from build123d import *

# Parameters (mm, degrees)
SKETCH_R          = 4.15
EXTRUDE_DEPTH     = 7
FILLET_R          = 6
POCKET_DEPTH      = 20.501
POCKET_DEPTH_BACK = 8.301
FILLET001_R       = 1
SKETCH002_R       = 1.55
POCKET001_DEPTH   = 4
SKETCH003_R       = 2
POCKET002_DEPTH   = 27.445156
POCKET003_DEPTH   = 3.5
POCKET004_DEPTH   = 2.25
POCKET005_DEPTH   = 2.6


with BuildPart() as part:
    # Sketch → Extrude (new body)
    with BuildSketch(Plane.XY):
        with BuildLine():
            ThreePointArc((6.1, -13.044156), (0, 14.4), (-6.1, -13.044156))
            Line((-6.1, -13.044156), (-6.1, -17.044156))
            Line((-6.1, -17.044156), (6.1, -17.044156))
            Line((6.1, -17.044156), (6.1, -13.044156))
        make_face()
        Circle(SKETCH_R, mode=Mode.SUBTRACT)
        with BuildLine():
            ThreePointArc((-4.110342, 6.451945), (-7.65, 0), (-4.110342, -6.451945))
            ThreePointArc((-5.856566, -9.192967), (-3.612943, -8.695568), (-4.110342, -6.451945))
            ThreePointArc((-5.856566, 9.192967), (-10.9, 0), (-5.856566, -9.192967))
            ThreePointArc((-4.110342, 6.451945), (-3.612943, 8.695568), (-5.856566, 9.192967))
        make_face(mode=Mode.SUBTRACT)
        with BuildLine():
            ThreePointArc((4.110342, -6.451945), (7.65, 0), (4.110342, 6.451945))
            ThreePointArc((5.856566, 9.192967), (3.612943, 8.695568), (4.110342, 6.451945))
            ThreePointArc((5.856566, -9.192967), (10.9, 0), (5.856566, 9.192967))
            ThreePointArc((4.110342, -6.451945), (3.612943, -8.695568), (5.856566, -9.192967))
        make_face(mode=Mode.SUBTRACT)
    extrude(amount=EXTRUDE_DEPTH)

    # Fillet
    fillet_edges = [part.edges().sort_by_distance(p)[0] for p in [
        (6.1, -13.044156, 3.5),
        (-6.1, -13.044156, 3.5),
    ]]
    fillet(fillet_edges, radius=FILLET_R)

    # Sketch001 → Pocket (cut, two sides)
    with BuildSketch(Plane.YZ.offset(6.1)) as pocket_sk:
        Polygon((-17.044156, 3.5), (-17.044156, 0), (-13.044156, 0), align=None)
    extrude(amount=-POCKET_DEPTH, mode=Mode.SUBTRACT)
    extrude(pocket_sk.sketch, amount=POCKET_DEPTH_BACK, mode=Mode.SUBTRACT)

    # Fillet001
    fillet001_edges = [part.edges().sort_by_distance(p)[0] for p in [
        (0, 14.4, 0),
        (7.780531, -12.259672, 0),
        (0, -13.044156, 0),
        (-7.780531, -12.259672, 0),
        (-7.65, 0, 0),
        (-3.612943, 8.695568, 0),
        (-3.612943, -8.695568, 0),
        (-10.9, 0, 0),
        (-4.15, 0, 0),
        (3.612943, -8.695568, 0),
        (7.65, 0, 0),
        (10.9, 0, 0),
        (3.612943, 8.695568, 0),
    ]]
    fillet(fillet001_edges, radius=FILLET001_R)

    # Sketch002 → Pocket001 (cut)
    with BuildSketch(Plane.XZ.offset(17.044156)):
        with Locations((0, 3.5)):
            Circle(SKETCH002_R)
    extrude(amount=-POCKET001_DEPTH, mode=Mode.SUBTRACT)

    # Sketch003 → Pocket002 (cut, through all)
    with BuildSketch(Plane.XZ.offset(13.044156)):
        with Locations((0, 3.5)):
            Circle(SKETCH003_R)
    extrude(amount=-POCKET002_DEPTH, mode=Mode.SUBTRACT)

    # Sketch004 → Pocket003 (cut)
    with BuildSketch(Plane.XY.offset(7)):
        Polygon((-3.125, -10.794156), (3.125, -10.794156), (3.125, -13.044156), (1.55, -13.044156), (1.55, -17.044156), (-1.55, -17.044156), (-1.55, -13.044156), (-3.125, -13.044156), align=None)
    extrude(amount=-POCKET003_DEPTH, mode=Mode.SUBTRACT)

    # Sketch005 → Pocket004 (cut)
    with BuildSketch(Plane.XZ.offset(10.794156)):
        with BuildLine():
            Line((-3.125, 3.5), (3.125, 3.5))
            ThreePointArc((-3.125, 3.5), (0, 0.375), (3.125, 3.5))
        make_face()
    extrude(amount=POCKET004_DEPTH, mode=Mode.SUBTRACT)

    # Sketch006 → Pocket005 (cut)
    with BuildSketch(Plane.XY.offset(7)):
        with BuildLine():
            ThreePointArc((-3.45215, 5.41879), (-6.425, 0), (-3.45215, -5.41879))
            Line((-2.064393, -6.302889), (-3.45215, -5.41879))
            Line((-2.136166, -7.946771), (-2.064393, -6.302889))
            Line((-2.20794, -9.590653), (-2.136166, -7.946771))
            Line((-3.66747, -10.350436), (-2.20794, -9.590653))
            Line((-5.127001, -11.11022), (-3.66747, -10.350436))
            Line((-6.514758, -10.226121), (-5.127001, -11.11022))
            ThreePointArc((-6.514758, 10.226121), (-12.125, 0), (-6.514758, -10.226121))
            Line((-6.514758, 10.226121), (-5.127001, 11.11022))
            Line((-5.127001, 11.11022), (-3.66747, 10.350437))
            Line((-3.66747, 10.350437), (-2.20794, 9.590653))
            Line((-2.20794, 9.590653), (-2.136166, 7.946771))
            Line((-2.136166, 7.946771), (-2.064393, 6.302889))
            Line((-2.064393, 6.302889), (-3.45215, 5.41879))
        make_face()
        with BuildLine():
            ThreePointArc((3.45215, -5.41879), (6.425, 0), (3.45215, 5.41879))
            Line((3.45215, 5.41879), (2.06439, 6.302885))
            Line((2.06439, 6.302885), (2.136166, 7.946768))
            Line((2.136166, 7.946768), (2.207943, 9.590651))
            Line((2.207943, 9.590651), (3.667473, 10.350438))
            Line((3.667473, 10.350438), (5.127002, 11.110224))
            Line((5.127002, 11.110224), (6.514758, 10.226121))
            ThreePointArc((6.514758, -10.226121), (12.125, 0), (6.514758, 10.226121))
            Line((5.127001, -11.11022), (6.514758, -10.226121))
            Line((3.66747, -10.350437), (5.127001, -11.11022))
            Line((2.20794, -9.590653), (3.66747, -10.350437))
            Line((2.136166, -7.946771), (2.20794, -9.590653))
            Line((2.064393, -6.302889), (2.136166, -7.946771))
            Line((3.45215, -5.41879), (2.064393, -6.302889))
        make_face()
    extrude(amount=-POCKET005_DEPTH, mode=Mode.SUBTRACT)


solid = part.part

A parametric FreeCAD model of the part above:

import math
import FreeCAD as App
import Part
import Sketcher

V = App.Vector
Q = App.Units.Quantity


def edges_at(feature, points):
    """Names of the edges that pass closest to the given points."""
    edges = feature.Shape.Edges
    near = lambda p: min(range(len(edges)), key=lambda i: edges[i].distToShape(Part.Vertex(*p))[0])
    return sorted({f"Edge{near(p) + 1}" for p in points})


def add_polygon(sketch, points):
    """Adds a closed chain of lines whose ends are joined by coincident constraints."""
    first, n = sketch.GeometryCount, len(points)
    for a, b in zip(points, points[1:] + points[:1]):
        sketch.addGeometry(Part.LineSegment(App.Vector(*a, 0), App.Vector(*b, 0)), False)
    for i in range(n):
        sketch.addConstraint(Sketcher.Constraint("Coincident", first + i, 2, first + (i + 1) % n, 1))

doc = App.newDocument("Part")
params = doc.addObject("Spreadsheet::Sheet", "Params")
for row, (alias, value) in enumerate([
    ("sketch1_diameter", "8.3 mm"),
    ("sketch1_radius", "14.4 mm"),
    ("sketch1_radius2", "10.900001 mm"),
    ("sketch1_height", "4 mm"),
    ("sketch1_radius3", "7.650001 mm"),
    ("pad1_length", "7 mm"),
    ("fillet_radius", "6 mm"),
    ("sketch2_width", "4 mm"),
    ("sketch2_height", "3.5 mm"),
    ("fillet2_radius", "1 mm"),
    ("sketch3_diameter", "3.1 mm"),
    ("pocket2_length", "4 mm"),
    ("sketch4_diameter", "4 mm"),
    ("sketch5_height", "4 mm"),
    ("sketch5_width", "3.1 mm"),
    ("sketch5_width2", "6.25 mm"),
    ("sketch5_height2", "2.25 mm"),
    ("pocket4_length", "3.5 mm"),
    ("pocket5_length", "2.25 mm"),
    ("pocket6_length", "2.6 mm"),
], start=1):
    params.set(f"A{row}", alias)
    params.set(f"B{row}", "=" + value)
    params.setAlias(f"B{row}", alias)

body = doc.addObject("PartDesign::Body", "Body")

sketch1 = body.newObject("Sketcher::SketchObject", "Sketch")
sketch1.AttachmentSupport = (doc.getObject("XY_Plane"), [""])
sketch1.MapMode = "FlatFace"
sketch1.addGeometry(Part.ArcOfCircle(Part.Circle(V(0, 0, 0), V(0, 0, 1), 14.4), math.radians(-65), math.radians(245)), False)
sketch1.addGeometry(Part.LineSegment(V(-6.1, -13, 0), V(-6.1, -17, 0)), False)
sketch1.addGeometry(Part.LineSegment(V(-6.1, -17, 0), V(6.1, -17, 0)), False)
sketch1.addGeometry(Part.LineSegment(V(6.1, -17, 0), V(6.1, -13, 0)), False)
sketch1.addGeometry(Part.ArcOfCircle(Part.Circle(V(-5, 7.8, 0), V(0, 0, 1), 1.6), math.radians(-57), math.radians(123)), False)
sketch1.addGeometry(Part.ArcOfCircle(Part.Circle(V(0, 0, 0), V(0, 0, 1), 7.7), math.radians(123), math.radians(237)), False)
sketch1.addGeometry(Part.ArcOfCircle(Part.Circle(V(-5, -7.8, 0), V(0, 0, 1), 1.6), math.radians(-123), math.radians(57)), False)
sketch1.addGeometry(Part.ArcOfCircle(Part.Circle(V(0, 0, 0), V(0, 0, 1), 10.9), math.radians(123), math.radians(237)), False)
sketch1.addGeometry(Part.Circle(V(0, 0, 0), V(0, 0, 1), 4.2), False)
sketch1.addGeometry(Part.ArcOfCircle(Part.Circle(V(5, -7.8, 0), V(0, 0, 1), 1.6), math.radians(123), math.radians(303)), False)
sketch1.addGeometry(Part.ArcOfCircle(Part.Circle(V(0, 0, 0), V(0, 0, 1), 7.7), math.radians(-57), math.radians(57)), False)
sketch1.addGeometry(Part.ArcOfCircle(Part.Circle(V(5, 7.8, 0), V(0, 0, 1), 1.6), math.radians(57), math.radians(237)), False)
sketch1.addGeometry(Part.ArcOfCircle(Part.Circle(V(0, 0, 0), V(0, 0, 1), 10.9), math.radians(-57), math.radians(57)), False)
sketch1.addConstraint(Sketcher.Constraint("Coincident", 0, 2, 1, 1))
sketch1.addConstraint(Sketcher.Constraint("Coincident", 1, 2, 2, 1))
sketch1.addConstraint(Sketcher.Constraint("Coincident", 2, 2, 3, 1))
sketch1.addConstraint(Sketcher.Constraint("Coincident", 3, 2, 0, 1))
sketch1.addConstraint(Sketcher.Constraint("Tangent", 4, 1, 5, 1))
sketch1.addConstraint(Sketcher.Constraint("Tangent", 5, 2, 6, 2))
sketch1.addConstraint(Sketcher.Constraint("Tangent", 6, 1, 7, 2))
sketch1.addConstraint(Sketcher.Constraint("Tangent", 7, 1, 4, 2))
sketch1.addConstraint(Sketcher.Constraint("Tangent", 9, 1, 10, 1))
sketch1.addConstraint(Sketcher.Constraint("Tangent", 10, 2, 11, 2))
sketch1.addConstraint(Sketcher.Constraint("Tangent", 11, 1, 12, 2))
sketch1.addConstraint(Sketcher.Constraint("Tangent", 12, 1, 9, 2))
sketch1.addConstraint(Sketcher.Constraint("Vertical", 1))
sketch1.addConstraint(Sketcher.Constraint("Horizontal", 2))
sketch1.addConstraint(Sketcher.Constraint("Vertical", 3))
sketch1.addConstraint(Sketcher.Constraint("Coincident", 0, 3, -1, 1))
sketch1.addConstraint(Sketcher.Constraint("Coincident", 5, 3, -1, 1))
sketch1.addConstraint(Sketcher.Constraint("Coincident", 7, 3, -1, 1))
sketch1.addConstraint(Sketcher.Constraint("Coincident", 8, 3, -1, 1))
sketch1.addConstraint(Sketcher.Constraint("Coincident", 10, 3, -1, 1))
sketch1.addConstraint(Sketcher.Constraint("Coincident", 12, 3, -1, 1))
sketch1.addConstraint(Sketcher.Constraint("Equal", 6, 9))
sketch1.addConstraint(Sketcher.Constraint("Equal", 5, 10))
sketch1.addConstraint(Sketcher.Constraint("Horizontal", 6, 3, 9, 3))
sketch1.addConstraint(Sketcher.Constraint("Horizontal", 4, 3, 11, 3))
sketch1.addConstraint(Sketcher.Constraint("Horizontal", 0, 2, 3, 2))
sketch1.addConstraint(Sketcher.Constraint("Vertical", 4, 3, 6, 3))
sketch1.addConstraint(Sketcher.Constraint("Diameter", 8, Q("8.3 mm")))
sketch1.addConstraint(Sketcher.Constraint("Radius", 0, Q("14.4 mm")))
sketch1.addConstraint(Sketcher.Constraint("Radius", 7, Q("10.900001 mm")))
sketch1.addConstraint(Sketcher.Constraint("DistanceY", 1, 2, 1, 1, Q("4 mm")))
sketch1.addConstraint(Sketcher.Constraint("Radius", 5, Q("7.650001 mm")))
sketch1.addConstraint(Sketcher.Constraint("DistanceX", 2, 1, 2, 2, Q("12.2 mm")))
sketch1.addConstraint(Sketcher.Constraint("DistanceY", 0, 2, 6, 3, Q("5.2217 mm")))
sketch1.setExpression("Constraints[27]", "Params.sketch1_diameter")
sketch1.setExpression("Constraints[28]", "Params.sketch1_radius")
sketch1.setExpression("Constraints[29]", "Params.sketch1_radius2")
sketch1.setExpression("Constraints[30]", "Params.sketch1_height")
sketch1.setExpression("Constraints[31]", "Params.sketch1_radius3")
pad1 = body.newObject("PartDesign::Pad", "Pad")
pad1.Profile = sketch1
pad1.setExpression("Length", "Params.pad1_length")
doc.recompute()

fillet = body.newObject("PartDesign::Fillet", "Fillet")
fillet.Base = (pad1, edges_at(pad1, [(6.1, -13.044, 3.5), (-6.1, -13.044, 3.5)]))
fillet.setExpression("Radius", "Params.fillet_radius")

sketch2 = body.newObject("Sketcher::SketchObject", "Sketch001")
sketch2.AttachmentSupport = (doc.getObject("YZ_Plane"), [""])
sketch2.MapMode = "FlatFace"
sketch2.AttachmentOffset = App.Placement(V(0, 0, 6.1), App.Rotation())
add_polygon(sketch2, [(-17, 3.5), (-17, 0), (-13, 0)])
sketch2.addConstraint(Sketcher.Constraint("Vertical", 0))
sketch2.addConstraint(Sketcher.Constraint("Horizontal", 1))
sketch2.addConstraint(Sketcher.Constraint("PointOnObject", 0, 2, -1))
sketch2.addConstraint(Sketcher.Constraint("DistanceX", 1, 1, 1, 2, Q("4 mm")))
sketch2.addConstraint(Sketcher.Constraint("DistanceY", 0, 2, 0, 1, Q("3.5 mm")))
sketch2.addConstraint(Sketcher.Constraint("DistanceX", 0, 2, -1, 1, Q("17.044156 mm")))
sketch2.setExpression("Constraints[6]", "Params.sketch2_width")
sketch2.setExpression("Constraints[7]", "Params.sketch2_height")
pocket1 = body.newObject("PartDesign::Pocket", "Pocket")
pocket1.Profile = sketch2
pocket1.Type = "ThroughAll"
pocket1.Midplane = True
doc.recompute()

fillet2 = body.newObject("PartDesign::Fillet", "Fillet001")
fillet2.Base = (pocket1, edges_at(pocket1, [
    (0, 14.4, 0),
    (7.781, -12.26, 0),
    (0, -13.044, 0),
    (-7.781, -12.26, 0),
    (-7.65, 0, 0),
    (-3.613, 8.696, 0),
    (-3.613, -8.696, 0),
    (-10.9, 0, 0),
    (-4.15, 0, 0),
    (3.613, -8.696, 0),
    (7.65, 0, 0),
    (10.9, 0, 0),
    (3.613, 8.696, 0),
]))
fillet2.setExpression("Radius", "Params.fillet2_radius")

sketch3 = body.newObject("Sketcher::SketchObject", "Sketch002")
sketch3.AttachmentSupport = (doc.getObject("XZ_Plane"), [""])
sketch3.MapMode = "FlatFace"
sketch3.AttachmentOffset = App.Placement(V(0, 0, 17.044156), App.Rotation())
sketch3.addGeometry(Part.Circle(V(0, 3.5, 0), V(0, 0, 1), 1.6), False)
sketch3.addConstraint(Sketcher.Constraint("PointOnObject", 0, 3, -2))
sketch3.addConstraint(Sketcher.Constraint("Diameter", 0, Q("3.1 mm")))
sketch3.addConstraint(Sketcher.Constraint("DistanceY", -1, 1, 0, 3, Q("3.5 mm")))
sketch3.setExpression("Constraints[1]", "Params.sketch3_diameter")
pocket2 = body.newObject("PartDesign::Pocket", "Pocket001")
pocket2.Profile = sketch3
pocket2.setExpression("Length", "Params.pocket2_length")

sketch4 = body.newObject("Sketcher::SketchObject", "Sketch003")
sketch4.AttachmentSupport = (doc.getObject("XZ_Plane"), [""])
sketch4.MapMode = "FlatFace"
sketch4.AttachmentOffset = App.Placement(V(0, 0, 13.044156), App.Rotation())
sketch4.addGeometry(Part.Circle(V(0, 3.5, 0), V(0, 0, 1), 2), False)
sketch4.addConstraint(Sketcher.Constraint("PointOnObject", 0, 3, -2))
sketch4.addConstraint(Sketcher.Constraint("Diameter", 0, Q("4 mm")))
sketch4.addConstraint(Sketcher.Constraint("DistanceY", -1, 1, 0, 3, Q("3.5 mm")))
sketch4.setExpression("Constraints[1]", "Params.sketch4_diameter")
pocket3 = body.newObject("PartDesign::Pocket", "Pocket002")
pocket3.Profile = sketch4
pocket3.Type = "ThroughAll"

sketch5 = body.newObject("Sketcher::SketchObject", "Sketch004")
sketch5.AttachmentSupport = (doc.getObject("XY_Plane"), [""])
sketch5.MapMode = "FlatFace"
sketch5.AttachmentOffset = App.Placement(V(0, 0, 7), App.Rotation())
add_polygon(sketch5, [(3.1, -10.8), (-3.1, -10.8), (-3.1, -13), (-1.6, -13), (-1.6, -17), (1.6, -17), (1.6, -13), (3.1, -13)])
sketch5.addConstraint(Sketcher.Constraint("Horizontal", 0))
sketch5.addConstraint(Sketcher.Constraint("Vertical", 1))
sketch5.addConstraint(Sketcher.Constraint("Horizontal", 2))
sketch5.addConstraint(Sketcher.Constraint("Vertical", 3))
sketch5.addConstraint(Sketcher.Constraint("Horizontal", 4))
sketch5.addConstraint(Sketcher.Constraint("Vertical", 5))
sketch5.addConstraint(Sketcher.Constraint("Horizontal", 6))
sketch5.addConstraint(Sketcher.Constraint("Vertical", 7))
sketch5.addConstraint(Sketcher.Constraint("Symmetric", 2, 2, 5, 2, -2))
sketch5.addConstraint(Sketcher.Constraint("Equal", 2, 6))
sketch5.addConstraint(Sketcher.Constraint("DistanceY", 3, 2, 3, 1, Q("4 mm")))
sketch5.addConstraint(Sketcher.Constraint("DistanceX", 4, 1, 4, 2, Q("3.1 mm")))
sketch5.addConstraint(Sketcher.Constraint("DistanceX", 0, 2, 0, 1, Q("6.25 mm")))
sketch5.addConstraint(Sketcher.Constraint("DistanceY", 1, 2, 1, 1, Q("2.25 mm")))
sketch5.addConstraint(Sketcher.Constraint("DistanceY", 0, 2, -1, 1, Q("10.794156 mm")))
sketch5.setExpression("Constraints[18]", "Params.sketch5_height")
sketch5.setExpression("Constraints[19]", "Params.sketch5_width")
sketch5.setExpression("Constraints[20]", "Params.sketch5_width2")
sketch5.setExpression("Constraints[21]", "Params.sketch5_height2")
pocket4 = body.newObject("PartDesign::Pocket", "Pocket003")
pocket4.Profile = sketch5
pocket4.setExpression("Length", "Params.pocket4_length")

sketch6 = body.newObject("Sketcher::SketchObject", "Sketch005")
sketch6.AttachmentSupport = (doc.getObject("XZ_Plane"), [""])
sketch6.MapMode = "FlatFace"
sketch6.AttachmentOffset = App.Placement(V(0, 0, 10.794156), App.Rotation())
sketch6.addGeometry(Part.LineSegment(V(3.1, 3.5, 0), V(-3.1, 3.5, 0)), False)
sketch6.addGeometry(Part.ArcOfCircle(Part.Circle(V(0, 3.5, 0), V(0, 0, 1), 3.1), math.radians(180), math.radians(360)), False)
sketch6.addConstraint(Sketcher.Constraint("Coincident", 0, 1, 1, 2))
sketch6.addConstraint(Sketcher.Constraint("Coincident", 1, 1, 0, 2))
sketch6.addConstraint(Sketcher.Constraint("Horizontal", 0))
sketch6.addConstraint(Sketcher.Constraint("PointOnObject", 1, 3, -2))
sketch6.addConstraint(Sketcher.Constraint("Horizontal", 1, 3, 0, 1))
sketch6.addConstraint(Sketcher.Constraint("Radius", 1, Q("3.125 mm")))
sketch6.addConstraint(Sketcher.Constraint("DistanceY", -1, 1, 1, 3, Q("3.5 mm")))
pocket5 = body.newObject("PartDesign::Pocket", "Pocket004")
pocket5.Profile = sketch6
pocket5.setExpression("Length", "Params.pocket5_length")
pocket5.Reversed = True

sketch7 = body.newObject("Sketcher::SketchObject", "Sketch006")
sketch7.AttachmentSupport = (doc.getObject("XY_Plane"), [""])
sketch7.MapMode = "FlatFace"
sketch7.AttachmentOffset = App.Placement(V(0, 0, 7), App.Rotation())
sketch7.addGeometry(Part.ArcOfCircle(Part.Circle(V(0, 0, 0), V(0, 0, 1), 6.4), math.radians(122), math.radians(238)), False)
sketch7.addGeometry(Part.LineSegment(V(-3.5, 5.4, 0), V(-2.1, 6.3, 0)), False)
sketch7.addGeometry(Part.LineSegment(V(-2.1, 6.3, 0), V(-2.1, 7.9, 0)), False)
sketch7.addGeometry(Part.LineSegment(V(-2.1, 7.9, 0), V(-2.2, 9.6, 0)), False)
sketch7.addGeometry(Part.LineSegment(V(-2.2, 9.6, 0), V(-3.7, 10.4, 0)), False)
sketch7.addGeometry(Part.LineSegment(V(-3.7, 10.4, 0), V(-5.1, 11.1, 0)), False)
sketch7.addGeometry(Part.LineSegment(V(-5.1, 11.1, 0), V(-6.5, 10.2, 0)), False)
sketch7.addGeometry(Part.ArcOfCircle(Part.Circle(V(0, 0, 0), V(0, 0, 1), 12.1), math.radians(123), math.radians(237)), False)
sketch7.addGeometry(Part.LineSegment(V(-6.5, -10.2, 0), V(-5.1, -11.1, 0)), False)
sketch7.addGeometry(Part.LineSegment(V(-5.1, -11.1, 0), V(-3.7, -10.4, 0)), False)
sketch7.addGeometry(Part.LineSegment(V(-3.7, -10.4, 0), V(-2.2, -9.6, 0)), False)
sketch7.addGeometry(Part.LineSegment(V(-2.2, -9.6, 0), V(-2.1, -7.9, 0)), False)
sketch7.addGeometry(Part.LineSegment(V(-2.1, -7.9, 0), V(-2.1, -6.3, 0)), False)
sketch7.addGeometry(Part.LineSegment(V(-2.1, -6.3, 0), V(-3.5, -5.4, 0)), False)
sketch7.addGeometry(Part.ArcOfCircle(Part.Circle(V(0, 0, 0), V(0, 0, 1), 6.4), math.radians(-58), math.radians(58)), False)
sketch7.addGeometry(Part.LineSegment(V(3.5, -5.4, 0), V(2.1, -6.3, 0)), False)
sketch7.addGeometry(Part.LineSegment(V(2.1, -6.3, 0), V(2.1, -7.9, 0)), False)
sketch7.addGeometry(Part.LineSegment(V(2.1, -7.9, 0), V(2.2, -9.6, 0)), False)
sketch7.addGeometry(Part.LineSegment(V(2.2, -9.6, 0), V(3.7, -10.4, 0)), False)
sketch7.addGeometry(Part.LineSegment(V(3.7, -10.4, 0), V(5.1, -11.1, 0)), False)
sketch7.addGeometry(Part.LineSegment(V(5.1, -11.1, 0), V(6.5, -10.2, 0)), False)
sketch7.addGeometry(Part.ArcOfCircle(Part.Circle(V(0, 0, 0), V(0, 0, 1), 12.1), math.radians(-57), math.radians(57)), False)
sketch7.addGeometry(Part.LineSegment(V(6.5, 10.2, 0), V(5.1, 11.1, 0)), False)
sketch7.addGeometry(Part.LineSegment(V(5.1, 11.1, 0), V(3.7, 10.4, 0)), False)
sketch7.addGeometry(Part.LineSegment(V(3.7, 10.4, 0), V(2.2, 9.6, 0)), False)
sketch7.addGeometry(Part.LineSegment(V(2.2, 9.6, 0), V(2.1, 7.9, 0)), False)
sketch7.addGeometry(Part.LineSegment(V(2.1, 7.9, 0), V(2.1, 6.3, 0)), False)
sketch7.addGeometry(Part.LineSegment(V(2.1, 6.3, 0), V(3.5, 5.4, 0)), False)
sketch7.addConstraint(Sketcher.Constraint("Tangent", 0, 1, 1, 1))
sketch7.addConstraint(Sketcher.Constraint("Coincident", 1, 2, 2, 1))
sketch7.addConstraint(Sketcher.Constraint("Coincident", 2, 2, 3, 1))
sketch7.addConstraint(Sketcher.Constraint("Coincident", 3, 2, 4, 1))
sketch7.addConstraint(Sketcher.Constraint("Coincident", 4, 2, 5, 1))
sketch7.addConstraint(Sketcher.Constraint("Coincident", 5, 2, 6, 1))
sketch7.addConstraint(Sketcher.Constraint("Tangent", 6, 2, 7, 1))
sketch7.addConstraint(Sketcher.Constraint("Tangent", 7, 2, 8, 1))
sketch7.addConstraint(Sketcher.Constraint("Coincident", 8, 2, 9, 1))
sketch7.addConstraint(Sketcher.Constraint("Coincident", 9, 2, 10, 1))
sketch7.addConstraint(Sketcher.Constraint("Coincident", 10, 2, 11, 1))
sketch7.addConstraint(Sketcher.Constraint("Coincident", 11, 2, 12, 1))
sketch7.addConstraint(Sketcher.Constraint("Coincident", 12, 2, 13, 1))
sketch7.addConstraint(Sketcher.Constraint("Tangent", 13, 2, 0, 2))
sketch7.addConstraint(Sketcher.Constraint("Tangent", 14, 1, 15, 1))
sketch7.addConstraint(Sketcher.Constraint("Coincident", 15, 2, 16, 1))
sketch7.addConstraint(Sketcher.Constraint("Coincident", 16, 2, 17, 1))
sketch7.addConstraint(Sketcher.Constraint("Coincident", 17, 2, 18, 1))
sketch7.addConstraint(Sketcher.Constraint("Coincident", 18, 2, 19, 1))
sketch7.addConstraint(Sketcher.Constraint("Coincident", 19, 2, 20, 1))
sketch7.addConstraint(Sketcher.Constraint("Tangent", 20, 2, 21, 1))
sketch7.addConstraint(Sketcher.Constraint("Coincident", 21, 2, 22, 1))
sketch7.addConstraint(Sketcher.Constraint("Coincident", 22, 2, 23, 1))
sketch7.addConstraint(Sketcher.Constraint("Coincident", 23, 2, 24, 1))
sketch7.addConstraint(Sketcher.Constraint("Coincident", 24, 2, 25, 1))
sketch7.addConstraint(Sketcher.Constraint("Coincident", 25, 2, 26, 1))
sketch7.addConstraint(Sketcher.Constraint("Coincident", 26, 2, 27, 1))
sketch7.addConstraint(Sketcher.Constraint("Coincident", 27, 2, 14, 2))
sketch7.addConstraint(Sketcher.Constraint("Coincident", 0, 3, -1, 1))
sketch7.addConstraint(Sketcher.Constraint("Coincident", 7, 3, -1, 1))
sketch7.addConstraint(Sketcher.Constraint("Coincident", 14, 3, -1, 1))
sketch7.addConstraint(Sketcher.Constraint("Coincident", 21, 3, -1, 1))
sketch7.addConstraint(Sketcher.Constraint("Equal", 0, 14))
sketch7.addConstraint(Sketcher.Constraint("Equal", 7, 21))
sketch7.addConstraint(Sketcher.Constraint("Symmetric", 1, 2, 15, 2, -1, 1))
sketch7.addConstraint(Sketcher.Constraint("Symmetric", 2, 2, 16, 2, -1, 1))
sketch7.addConstraint(Sketcher.Constraint("Symmetric", 3, 2, 17, 2, -1, 1))
sketch7.addConstraint(Sketcher.Constraint("Symmetric", 4, 2, 18, 2, -1, 1))
sketch7.addConstraint(Sketcher.Constraint("Symmetric", 5, 2, 19, 2, -1, 1))
sketch7.addConstraint(Sketcher.Constraint("Symmetric", 8, 2, 22, 2, -1, 1))
sketch7.addConstraint(Sketcher.Constraint("Symmetric", 9, 2, 23, 2, -1, 1))
sketch7.addConstraint(Sketcher.Constraint("Symmetric", 10, 2, 24, 2, -1, 1))
sketch7.addConstraint(Sketcher.Constraint("Symmetric", 11, 2, 25, 2, -1, 1))
sketch7.addConstraint(Sketcher.Constraint("Symmetric", 12, 2, 26, 2, -1, 1))
sketch7.addConstraint(Sketcher.Constraint("Symmetric", 12, 2, 15, 2, -2))
sketch7.addConstraint(Sketcher.Constraint("Symmetric", 11, 2, 16, 2, -2))
sketch7.addConstraint(Sketcher.Constraint("Symmetric", 10, 2, 17, 2, -2))
sketch7.addConstraint(Sketcher.Constraint("Symmetric", 9, 2, 18, 2, -2))
sketch7.addConstraint(Sketcher.Constraint("Symmetric", 8, 2, 19, 2, -2))
sketch7.addConstraint(Sketcher.Constraint("Parallel", 2, 3))
sketch7.addConstraint(Sketcher.Constraint("Parallel", 4, 5))
sketch7.addConstraint(Sketcher.Constraint("Parallel", 1, 6))
sketch7.addConstraint(Sketcher.Constraint("Horizontal", 6, 2, 21, 2))
sketch7.addConstraint(Sketcher.Constraint("Horizontal", 0, 1, 27, 2))
sketch7.addConstraint(Sketcher.Constraint("Equal", 1, 2))
sketch7.addConstraint(Sketcher.Constraint("Equal", 2, 3))
sketch7.addConstraint(Sketcher.Constraint("Equal", 3, 4))
sketch7.addConstraint(Sketcher.Constraint("Equal", 4, 5))
sketch7.addConstraint(Sketcher.Constraint("Equal", 5, 6))
sketch7.addConstraint(Sketcher.Constraint("Angle", 1, Q("32.500008 deg")))
sketch7.addConstraint(Sketcher.Constraint("Angle", 2, Q("92.499985 deg")))
sketch7.addConstraint(Sketcher.Constraint("Radius", 0, Q("6.425 mm")))
sketch7.addConstraint(Sketcher.Constraint("Radius", 7, Q("12.125 mm")))
pocket6 = body.newObject("PartDesign::Pocket", "Pocket005")
pocket6.Profile = sketch7
pocket6.setExpression("Length", "Params.pocket6_length")

doc.recompute()
